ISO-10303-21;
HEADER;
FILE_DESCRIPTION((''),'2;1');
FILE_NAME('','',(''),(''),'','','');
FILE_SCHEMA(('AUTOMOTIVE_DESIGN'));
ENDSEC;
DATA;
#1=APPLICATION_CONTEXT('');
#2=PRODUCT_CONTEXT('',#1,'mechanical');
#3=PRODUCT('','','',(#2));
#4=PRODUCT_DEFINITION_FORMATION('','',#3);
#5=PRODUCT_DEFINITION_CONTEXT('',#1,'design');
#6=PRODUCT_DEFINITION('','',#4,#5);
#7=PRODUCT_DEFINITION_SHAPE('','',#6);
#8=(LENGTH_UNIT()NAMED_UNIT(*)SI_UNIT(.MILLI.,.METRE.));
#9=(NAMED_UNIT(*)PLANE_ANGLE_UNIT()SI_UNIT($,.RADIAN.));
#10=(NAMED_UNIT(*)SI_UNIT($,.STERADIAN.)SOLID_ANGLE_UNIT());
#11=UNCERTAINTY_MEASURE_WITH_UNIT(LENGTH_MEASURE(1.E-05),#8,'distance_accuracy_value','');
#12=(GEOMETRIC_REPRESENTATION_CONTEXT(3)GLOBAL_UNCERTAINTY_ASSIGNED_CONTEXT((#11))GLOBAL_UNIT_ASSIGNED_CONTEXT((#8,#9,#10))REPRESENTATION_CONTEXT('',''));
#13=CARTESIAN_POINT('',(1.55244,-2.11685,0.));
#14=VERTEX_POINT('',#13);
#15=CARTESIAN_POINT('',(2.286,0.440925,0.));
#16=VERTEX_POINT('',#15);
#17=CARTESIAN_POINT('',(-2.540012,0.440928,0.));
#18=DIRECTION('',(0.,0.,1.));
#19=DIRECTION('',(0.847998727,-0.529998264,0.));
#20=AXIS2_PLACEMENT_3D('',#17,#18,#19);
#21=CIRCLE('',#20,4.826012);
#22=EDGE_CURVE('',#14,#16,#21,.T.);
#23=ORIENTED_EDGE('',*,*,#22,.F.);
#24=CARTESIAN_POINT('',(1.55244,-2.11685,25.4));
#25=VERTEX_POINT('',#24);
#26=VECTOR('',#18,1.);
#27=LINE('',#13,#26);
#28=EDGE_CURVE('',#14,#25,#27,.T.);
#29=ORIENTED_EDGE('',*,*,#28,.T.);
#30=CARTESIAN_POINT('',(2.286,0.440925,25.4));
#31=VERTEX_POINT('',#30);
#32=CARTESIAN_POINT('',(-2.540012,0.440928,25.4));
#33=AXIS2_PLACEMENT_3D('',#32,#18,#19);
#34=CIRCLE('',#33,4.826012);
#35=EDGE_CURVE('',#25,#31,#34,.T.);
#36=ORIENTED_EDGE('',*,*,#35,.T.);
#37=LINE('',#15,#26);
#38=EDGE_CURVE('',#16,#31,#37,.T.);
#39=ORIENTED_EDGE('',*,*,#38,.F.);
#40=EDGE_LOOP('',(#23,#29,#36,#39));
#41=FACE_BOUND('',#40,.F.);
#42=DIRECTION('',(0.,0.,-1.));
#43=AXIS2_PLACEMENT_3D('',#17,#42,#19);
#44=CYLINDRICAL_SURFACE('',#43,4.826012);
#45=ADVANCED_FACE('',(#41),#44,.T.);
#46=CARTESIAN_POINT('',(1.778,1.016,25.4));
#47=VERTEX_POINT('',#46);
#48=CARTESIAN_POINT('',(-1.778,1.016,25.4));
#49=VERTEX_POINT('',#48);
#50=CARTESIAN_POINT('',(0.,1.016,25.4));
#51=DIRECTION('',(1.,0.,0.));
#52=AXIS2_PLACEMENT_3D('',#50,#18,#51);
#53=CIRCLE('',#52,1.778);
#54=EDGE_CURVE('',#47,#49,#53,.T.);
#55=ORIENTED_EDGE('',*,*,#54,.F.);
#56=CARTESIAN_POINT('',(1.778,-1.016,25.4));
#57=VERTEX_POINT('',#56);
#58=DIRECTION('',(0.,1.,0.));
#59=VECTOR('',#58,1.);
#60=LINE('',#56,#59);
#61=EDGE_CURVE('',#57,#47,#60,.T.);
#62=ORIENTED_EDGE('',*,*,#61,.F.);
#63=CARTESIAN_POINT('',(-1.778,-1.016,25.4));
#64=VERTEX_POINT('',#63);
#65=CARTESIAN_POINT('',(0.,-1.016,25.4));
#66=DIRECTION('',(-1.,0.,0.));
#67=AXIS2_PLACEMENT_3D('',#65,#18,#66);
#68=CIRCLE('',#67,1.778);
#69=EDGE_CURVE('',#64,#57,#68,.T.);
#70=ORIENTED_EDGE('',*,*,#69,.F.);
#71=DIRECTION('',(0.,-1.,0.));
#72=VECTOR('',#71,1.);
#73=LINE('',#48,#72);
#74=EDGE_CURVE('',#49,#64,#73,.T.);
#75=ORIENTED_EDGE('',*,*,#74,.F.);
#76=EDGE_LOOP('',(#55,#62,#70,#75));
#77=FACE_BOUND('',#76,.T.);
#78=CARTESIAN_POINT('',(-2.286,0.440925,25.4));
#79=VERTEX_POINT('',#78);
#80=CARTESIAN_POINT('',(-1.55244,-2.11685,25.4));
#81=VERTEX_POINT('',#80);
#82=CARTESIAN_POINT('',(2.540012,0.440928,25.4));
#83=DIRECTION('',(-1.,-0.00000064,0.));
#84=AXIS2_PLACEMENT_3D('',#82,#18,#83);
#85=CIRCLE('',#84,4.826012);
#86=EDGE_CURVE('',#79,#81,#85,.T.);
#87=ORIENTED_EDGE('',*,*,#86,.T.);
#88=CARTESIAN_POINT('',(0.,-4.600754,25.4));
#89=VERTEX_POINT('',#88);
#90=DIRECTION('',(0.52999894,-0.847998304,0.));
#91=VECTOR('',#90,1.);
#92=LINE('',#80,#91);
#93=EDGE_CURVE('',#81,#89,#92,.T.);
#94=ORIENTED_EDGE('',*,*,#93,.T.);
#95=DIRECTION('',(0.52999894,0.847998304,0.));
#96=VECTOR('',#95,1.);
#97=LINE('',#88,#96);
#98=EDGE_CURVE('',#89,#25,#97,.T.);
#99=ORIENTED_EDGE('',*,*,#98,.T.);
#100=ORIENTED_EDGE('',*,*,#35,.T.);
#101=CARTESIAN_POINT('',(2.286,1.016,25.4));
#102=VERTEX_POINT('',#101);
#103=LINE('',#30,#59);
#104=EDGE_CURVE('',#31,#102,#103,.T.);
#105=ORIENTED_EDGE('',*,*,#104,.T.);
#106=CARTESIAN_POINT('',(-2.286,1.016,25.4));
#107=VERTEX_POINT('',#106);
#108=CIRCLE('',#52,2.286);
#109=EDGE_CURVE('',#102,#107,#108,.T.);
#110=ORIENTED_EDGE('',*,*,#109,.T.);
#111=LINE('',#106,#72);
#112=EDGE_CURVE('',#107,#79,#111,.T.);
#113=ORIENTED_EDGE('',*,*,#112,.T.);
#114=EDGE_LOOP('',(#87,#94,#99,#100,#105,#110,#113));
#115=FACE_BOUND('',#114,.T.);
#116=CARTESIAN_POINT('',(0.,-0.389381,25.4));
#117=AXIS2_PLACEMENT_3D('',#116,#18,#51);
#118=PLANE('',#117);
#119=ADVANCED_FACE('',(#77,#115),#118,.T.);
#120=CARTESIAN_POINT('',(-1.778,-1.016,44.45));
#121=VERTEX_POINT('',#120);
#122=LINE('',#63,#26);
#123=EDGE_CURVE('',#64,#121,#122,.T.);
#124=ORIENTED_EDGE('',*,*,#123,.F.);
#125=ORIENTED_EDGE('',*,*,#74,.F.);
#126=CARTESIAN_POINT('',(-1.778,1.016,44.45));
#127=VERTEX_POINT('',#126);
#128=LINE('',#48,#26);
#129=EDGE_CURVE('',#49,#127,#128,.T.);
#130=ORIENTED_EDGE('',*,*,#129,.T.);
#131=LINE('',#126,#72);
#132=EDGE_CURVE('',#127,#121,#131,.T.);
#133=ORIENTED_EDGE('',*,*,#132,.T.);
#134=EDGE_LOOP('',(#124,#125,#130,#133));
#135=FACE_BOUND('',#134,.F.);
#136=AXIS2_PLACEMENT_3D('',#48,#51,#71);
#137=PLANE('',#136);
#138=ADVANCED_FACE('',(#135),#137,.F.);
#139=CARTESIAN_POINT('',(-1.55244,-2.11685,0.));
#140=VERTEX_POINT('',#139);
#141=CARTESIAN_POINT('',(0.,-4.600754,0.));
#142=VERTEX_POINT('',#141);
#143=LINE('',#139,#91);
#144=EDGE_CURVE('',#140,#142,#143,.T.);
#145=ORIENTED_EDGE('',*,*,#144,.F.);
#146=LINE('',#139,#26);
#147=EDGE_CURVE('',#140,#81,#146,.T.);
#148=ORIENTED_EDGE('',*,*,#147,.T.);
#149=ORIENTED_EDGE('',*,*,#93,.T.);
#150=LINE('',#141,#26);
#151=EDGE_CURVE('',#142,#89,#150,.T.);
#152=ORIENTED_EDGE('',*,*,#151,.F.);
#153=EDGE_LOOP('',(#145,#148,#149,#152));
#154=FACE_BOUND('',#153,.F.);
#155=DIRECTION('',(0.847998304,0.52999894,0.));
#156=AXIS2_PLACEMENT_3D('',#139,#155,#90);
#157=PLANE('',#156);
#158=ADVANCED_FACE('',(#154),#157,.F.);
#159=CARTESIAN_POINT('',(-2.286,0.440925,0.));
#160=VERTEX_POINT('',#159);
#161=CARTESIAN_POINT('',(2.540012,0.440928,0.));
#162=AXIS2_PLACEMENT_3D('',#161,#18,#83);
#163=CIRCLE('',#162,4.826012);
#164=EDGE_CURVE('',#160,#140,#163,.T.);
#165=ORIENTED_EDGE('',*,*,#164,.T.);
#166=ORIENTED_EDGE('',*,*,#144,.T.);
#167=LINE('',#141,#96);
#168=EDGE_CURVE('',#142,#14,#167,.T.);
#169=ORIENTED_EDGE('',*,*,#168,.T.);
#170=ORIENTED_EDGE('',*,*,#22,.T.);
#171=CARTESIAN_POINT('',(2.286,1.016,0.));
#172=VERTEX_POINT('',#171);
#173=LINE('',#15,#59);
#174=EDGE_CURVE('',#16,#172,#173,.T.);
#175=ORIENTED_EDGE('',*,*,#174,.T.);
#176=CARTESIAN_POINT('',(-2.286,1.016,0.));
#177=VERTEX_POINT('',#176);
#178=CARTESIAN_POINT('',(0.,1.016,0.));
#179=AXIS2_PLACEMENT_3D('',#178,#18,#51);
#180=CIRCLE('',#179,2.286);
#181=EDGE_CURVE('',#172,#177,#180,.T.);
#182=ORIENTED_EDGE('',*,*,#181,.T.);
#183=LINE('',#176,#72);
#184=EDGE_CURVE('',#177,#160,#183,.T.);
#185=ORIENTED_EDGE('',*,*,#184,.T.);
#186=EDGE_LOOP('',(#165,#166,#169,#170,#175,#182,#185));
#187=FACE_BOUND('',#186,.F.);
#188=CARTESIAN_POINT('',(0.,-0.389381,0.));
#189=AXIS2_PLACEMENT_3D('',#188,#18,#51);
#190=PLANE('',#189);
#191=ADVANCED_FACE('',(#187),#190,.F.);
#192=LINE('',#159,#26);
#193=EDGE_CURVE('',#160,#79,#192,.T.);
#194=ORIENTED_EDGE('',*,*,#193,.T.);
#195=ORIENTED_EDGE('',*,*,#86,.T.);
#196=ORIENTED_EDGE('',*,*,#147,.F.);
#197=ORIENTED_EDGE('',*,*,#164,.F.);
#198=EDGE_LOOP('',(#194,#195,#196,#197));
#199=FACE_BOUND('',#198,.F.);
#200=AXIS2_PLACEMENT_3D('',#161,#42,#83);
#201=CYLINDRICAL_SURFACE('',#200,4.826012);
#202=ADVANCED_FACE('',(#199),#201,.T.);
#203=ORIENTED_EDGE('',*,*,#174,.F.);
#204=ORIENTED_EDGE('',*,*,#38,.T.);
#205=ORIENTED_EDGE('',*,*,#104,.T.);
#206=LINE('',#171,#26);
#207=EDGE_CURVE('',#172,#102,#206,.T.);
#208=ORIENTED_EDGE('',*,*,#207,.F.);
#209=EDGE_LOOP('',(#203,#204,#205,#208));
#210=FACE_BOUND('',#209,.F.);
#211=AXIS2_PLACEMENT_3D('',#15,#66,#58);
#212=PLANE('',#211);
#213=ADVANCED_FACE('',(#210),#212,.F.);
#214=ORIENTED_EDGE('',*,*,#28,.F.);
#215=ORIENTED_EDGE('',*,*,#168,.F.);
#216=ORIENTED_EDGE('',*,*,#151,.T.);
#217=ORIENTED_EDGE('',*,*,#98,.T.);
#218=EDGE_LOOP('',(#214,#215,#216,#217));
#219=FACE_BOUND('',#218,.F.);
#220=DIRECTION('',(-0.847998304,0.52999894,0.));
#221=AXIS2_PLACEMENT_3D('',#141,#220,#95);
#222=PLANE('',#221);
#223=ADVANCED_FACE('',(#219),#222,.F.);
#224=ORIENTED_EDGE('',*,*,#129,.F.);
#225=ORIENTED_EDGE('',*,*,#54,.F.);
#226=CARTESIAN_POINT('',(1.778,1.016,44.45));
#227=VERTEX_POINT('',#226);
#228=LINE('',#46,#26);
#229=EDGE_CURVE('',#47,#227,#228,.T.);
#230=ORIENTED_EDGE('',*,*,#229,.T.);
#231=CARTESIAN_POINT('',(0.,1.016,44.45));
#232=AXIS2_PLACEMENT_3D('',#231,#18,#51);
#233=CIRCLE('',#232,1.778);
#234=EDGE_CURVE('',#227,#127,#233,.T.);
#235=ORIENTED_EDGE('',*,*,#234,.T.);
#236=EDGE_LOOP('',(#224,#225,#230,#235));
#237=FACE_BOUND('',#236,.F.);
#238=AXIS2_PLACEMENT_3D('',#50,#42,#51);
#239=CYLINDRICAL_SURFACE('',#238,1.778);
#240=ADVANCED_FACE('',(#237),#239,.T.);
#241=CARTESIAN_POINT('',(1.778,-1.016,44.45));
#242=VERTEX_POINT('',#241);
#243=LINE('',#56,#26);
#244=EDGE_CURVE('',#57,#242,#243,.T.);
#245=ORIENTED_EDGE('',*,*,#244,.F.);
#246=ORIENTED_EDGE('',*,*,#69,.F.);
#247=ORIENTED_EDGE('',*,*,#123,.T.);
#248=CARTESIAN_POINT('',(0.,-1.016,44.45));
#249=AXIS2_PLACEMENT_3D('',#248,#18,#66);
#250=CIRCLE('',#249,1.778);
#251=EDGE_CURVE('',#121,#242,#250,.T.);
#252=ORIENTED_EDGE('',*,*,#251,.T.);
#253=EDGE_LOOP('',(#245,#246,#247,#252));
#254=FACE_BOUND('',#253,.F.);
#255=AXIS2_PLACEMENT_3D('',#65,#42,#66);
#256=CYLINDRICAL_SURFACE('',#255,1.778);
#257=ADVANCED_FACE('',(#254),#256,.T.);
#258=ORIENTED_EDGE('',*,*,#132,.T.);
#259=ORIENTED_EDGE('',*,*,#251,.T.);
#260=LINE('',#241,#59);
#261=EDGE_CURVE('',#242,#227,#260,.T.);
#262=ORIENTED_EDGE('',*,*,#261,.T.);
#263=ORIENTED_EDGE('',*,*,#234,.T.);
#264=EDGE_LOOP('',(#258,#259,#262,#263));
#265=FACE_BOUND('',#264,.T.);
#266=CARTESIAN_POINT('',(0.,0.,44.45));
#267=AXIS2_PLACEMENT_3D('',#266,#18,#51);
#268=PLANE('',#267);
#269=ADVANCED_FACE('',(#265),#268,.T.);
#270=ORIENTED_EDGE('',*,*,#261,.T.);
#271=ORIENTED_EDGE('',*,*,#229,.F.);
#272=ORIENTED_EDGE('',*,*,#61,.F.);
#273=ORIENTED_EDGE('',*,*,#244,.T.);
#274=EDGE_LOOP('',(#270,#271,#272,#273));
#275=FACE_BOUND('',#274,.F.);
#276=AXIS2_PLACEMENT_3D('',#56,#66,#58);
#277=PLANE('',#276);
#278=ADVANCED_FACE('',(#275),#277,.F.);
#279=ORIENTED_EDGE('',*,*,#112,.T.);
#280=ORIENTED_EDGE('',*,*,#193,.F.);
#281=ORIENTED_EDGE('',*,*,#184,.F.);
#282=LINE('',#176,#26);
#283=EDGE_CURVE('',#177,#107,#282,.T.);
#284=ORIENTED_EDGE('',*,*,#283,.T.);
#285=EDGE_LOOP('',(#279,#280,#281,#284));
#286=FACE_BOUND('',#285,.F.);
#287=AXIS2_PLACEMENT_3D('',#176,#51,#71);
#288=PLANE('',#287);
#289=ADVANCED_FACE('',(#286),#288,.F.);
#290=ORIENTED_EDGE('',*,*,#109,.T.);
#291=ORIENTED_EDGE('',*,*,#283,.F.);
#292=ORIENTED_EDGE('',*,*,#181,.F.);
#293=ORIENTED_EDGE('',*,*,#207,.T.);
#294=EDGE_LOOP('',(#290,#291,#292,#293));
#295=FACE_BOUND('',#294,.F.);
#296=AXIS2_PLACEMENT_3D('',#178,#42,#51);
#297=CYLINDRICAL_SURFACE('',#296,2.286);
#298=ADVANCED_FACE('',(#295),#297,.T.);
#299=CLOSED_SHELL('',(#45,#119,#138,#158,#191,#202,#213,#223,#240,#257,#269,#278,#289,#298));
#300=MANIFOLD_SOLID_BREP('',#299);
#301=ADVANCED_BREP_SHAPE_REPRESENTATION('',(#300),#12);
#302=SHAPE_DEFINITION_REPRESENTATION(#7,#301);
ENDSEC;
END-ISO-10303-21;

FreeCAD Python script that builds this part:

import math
import FreeCAD as App
import Part
import Sketcher
Q = App.Units.Quantity

doc = App.newDocument("Part")
body = doc.addObject("PartDesign::Body", "Body")

sketch1 = body.newObject("Sketcher::SketchObject", "Sketch")
sketch1.AttachmentSupport = (doc.getObject("XY_Plane"), [""])
sketch1.MapMode = "FlatFace"
sketch1.addGeometry([
    Part.LineSegment(App.Vector(2.286, 0.440925, 0), App.Vector(2.286, 1.016, 0)),
    Part.ArcOfCircle(Part.Circle(App.Vector(0, 1.016, 0), App.Vector(0, 0, 1), 2.286), math.radians(0), math.radians(180)),
    Part.LineSegment(App.Vector(-2.286, 1.016, 0), App.Vector(-2.286, 0.440925, 0)),
    Part.ArcOfCircle(Part.Circle(App.Vector(2.540012, 0.440928, 0), App.Vector(0, 0, 1), 4.826012), math.radians(-179.999963), math.radians(-147.994662)),
    Part.LineSegment(App.Vector(-1.55244, -2.11685, 0), App.Vector(0, -4.600754, 0)),
    Part.LineSegment(App.Vector(0, -4.600754, 0), App.Vector(1.55244, -2.11685, 0)),
    Part.ArcOfCircle(Part.Circle(App.Vector(-2.540012, 0.440928, 0), App.Vector(0, 0, 1), 4.826012), math.radians(-32.005338), math.radians(-0.000037)),
], False)
sketch1.addConstraint([
    Sketcher.Constraint("Tangent", 0, 2, 1, 1),
    Sketcher.Constraint("Tangent", 1, 2, 2, 1),
    Sketcher.Constraint("Tangent", 2, 2, 3, 1),
    Sketcher.Constraint("Tangent", 3, 2, 4, 1),
    Sketcher.Constraint("Coincident", 4, 2, 5, 1),
    Sketcher.Constraint("Tangent", 5, 2, 6, 1),
    Sketcher.Constraint("Tangent", 6, 2, 0, 1),
    Sketcher.Constraint("Vertical", 0),
    Sketcher.Constraint("Vertical", 2),
    Sketcher.Constraint("Equal", 3, 6),
    Sketcher.Constraint("Symmetric", 3, 3, 6, 3, -2),
    Sketcher.Constraint("PointOnObject", 4, 2, -2),
    Sketcher.Constraint("Radius", 1, Q("0.09 in")),
    Sketcher.Constraint("DistanceY", -1, 1, 1, 3, Q("0.04 in")),
    Sketcher.Constraint("Radius", 3, Q("4.826012 mm")),
    Sketcher.Constraint("DistanceY", 3, 2, 2, 2, Q("0.1006998 in")),
    Sketcher.Constraint("DistanceY", 0, 1, 0, 2, Q("0.575075 mm")),
])
pad1 = body.newObject("PartDesign::Pad", "Pad")
pad1.Profile = sketch1
pad1.Length = Q("1 in")

sketch2 = body.newObject("Sketcher::SketchObject", "Sketch001")
sketch2.AttachmentSupport = (doc.getObject("XY_Plane"), [""])
sketch2.MapMode = "FlatFace"
sketch2.AttachmentOffset = App.Placement(App.Vector(0, 0, 1 * 25.4), App.Rotation())
sketch2.addGeometry([
    Part.ArcOfCircle(Part.Circle(App.Vector(0, 1.016, 0), App.Vector(0, 0, 1), 1.778), math.radians(0), math.radians(180)),
    Part.LineSegment(App.Vector(-1.778, 1.016, 0), App.Vector(-1.778, -1.016, 0)),
    Part.ArcOfCircle(Part.Circle(App.Vector(0, -1.016, 0), App.Vector(0, 0, 1), 1.778), math.radians(180), math.radians(360)),
    Part.LineSegment(App.Vector(1.778, -1.016, 0), App.Vector(1.778, 1.016, 0)),
], False)
sketch2.addConstraint([
    Sketcher.Constraint("Tangent", 0, 2, 1, 1),
    Sketcher.Constraint("Tangent", 1, 2, 2, 1),
    Sketcher.Constraint("Tangent", 2, 2, 3, 1),
    Sketcher.Constraint("Tangent", 3, 2, 0, 1),
    Sketcher.Constraint("Vertical", 1),
    Sketcher.Constraint("Vertical", 3),
    Sketcher.Constraint("Symmetric", 0, 3, 2, 3, -1, 1),
    Sketcher.Constraint("Radius", 0, Q("0.07 in")),
    Sketcher.Constraint("DistanceY", 1, 2, 1, 1, Q("0.08 in")),
])
pad2 = body.newObject("PartDesign::Pad", "Pad001")
pad2.Profile = sketch2
pad2.Length = Q("0.75 in")

doc.recompute()
